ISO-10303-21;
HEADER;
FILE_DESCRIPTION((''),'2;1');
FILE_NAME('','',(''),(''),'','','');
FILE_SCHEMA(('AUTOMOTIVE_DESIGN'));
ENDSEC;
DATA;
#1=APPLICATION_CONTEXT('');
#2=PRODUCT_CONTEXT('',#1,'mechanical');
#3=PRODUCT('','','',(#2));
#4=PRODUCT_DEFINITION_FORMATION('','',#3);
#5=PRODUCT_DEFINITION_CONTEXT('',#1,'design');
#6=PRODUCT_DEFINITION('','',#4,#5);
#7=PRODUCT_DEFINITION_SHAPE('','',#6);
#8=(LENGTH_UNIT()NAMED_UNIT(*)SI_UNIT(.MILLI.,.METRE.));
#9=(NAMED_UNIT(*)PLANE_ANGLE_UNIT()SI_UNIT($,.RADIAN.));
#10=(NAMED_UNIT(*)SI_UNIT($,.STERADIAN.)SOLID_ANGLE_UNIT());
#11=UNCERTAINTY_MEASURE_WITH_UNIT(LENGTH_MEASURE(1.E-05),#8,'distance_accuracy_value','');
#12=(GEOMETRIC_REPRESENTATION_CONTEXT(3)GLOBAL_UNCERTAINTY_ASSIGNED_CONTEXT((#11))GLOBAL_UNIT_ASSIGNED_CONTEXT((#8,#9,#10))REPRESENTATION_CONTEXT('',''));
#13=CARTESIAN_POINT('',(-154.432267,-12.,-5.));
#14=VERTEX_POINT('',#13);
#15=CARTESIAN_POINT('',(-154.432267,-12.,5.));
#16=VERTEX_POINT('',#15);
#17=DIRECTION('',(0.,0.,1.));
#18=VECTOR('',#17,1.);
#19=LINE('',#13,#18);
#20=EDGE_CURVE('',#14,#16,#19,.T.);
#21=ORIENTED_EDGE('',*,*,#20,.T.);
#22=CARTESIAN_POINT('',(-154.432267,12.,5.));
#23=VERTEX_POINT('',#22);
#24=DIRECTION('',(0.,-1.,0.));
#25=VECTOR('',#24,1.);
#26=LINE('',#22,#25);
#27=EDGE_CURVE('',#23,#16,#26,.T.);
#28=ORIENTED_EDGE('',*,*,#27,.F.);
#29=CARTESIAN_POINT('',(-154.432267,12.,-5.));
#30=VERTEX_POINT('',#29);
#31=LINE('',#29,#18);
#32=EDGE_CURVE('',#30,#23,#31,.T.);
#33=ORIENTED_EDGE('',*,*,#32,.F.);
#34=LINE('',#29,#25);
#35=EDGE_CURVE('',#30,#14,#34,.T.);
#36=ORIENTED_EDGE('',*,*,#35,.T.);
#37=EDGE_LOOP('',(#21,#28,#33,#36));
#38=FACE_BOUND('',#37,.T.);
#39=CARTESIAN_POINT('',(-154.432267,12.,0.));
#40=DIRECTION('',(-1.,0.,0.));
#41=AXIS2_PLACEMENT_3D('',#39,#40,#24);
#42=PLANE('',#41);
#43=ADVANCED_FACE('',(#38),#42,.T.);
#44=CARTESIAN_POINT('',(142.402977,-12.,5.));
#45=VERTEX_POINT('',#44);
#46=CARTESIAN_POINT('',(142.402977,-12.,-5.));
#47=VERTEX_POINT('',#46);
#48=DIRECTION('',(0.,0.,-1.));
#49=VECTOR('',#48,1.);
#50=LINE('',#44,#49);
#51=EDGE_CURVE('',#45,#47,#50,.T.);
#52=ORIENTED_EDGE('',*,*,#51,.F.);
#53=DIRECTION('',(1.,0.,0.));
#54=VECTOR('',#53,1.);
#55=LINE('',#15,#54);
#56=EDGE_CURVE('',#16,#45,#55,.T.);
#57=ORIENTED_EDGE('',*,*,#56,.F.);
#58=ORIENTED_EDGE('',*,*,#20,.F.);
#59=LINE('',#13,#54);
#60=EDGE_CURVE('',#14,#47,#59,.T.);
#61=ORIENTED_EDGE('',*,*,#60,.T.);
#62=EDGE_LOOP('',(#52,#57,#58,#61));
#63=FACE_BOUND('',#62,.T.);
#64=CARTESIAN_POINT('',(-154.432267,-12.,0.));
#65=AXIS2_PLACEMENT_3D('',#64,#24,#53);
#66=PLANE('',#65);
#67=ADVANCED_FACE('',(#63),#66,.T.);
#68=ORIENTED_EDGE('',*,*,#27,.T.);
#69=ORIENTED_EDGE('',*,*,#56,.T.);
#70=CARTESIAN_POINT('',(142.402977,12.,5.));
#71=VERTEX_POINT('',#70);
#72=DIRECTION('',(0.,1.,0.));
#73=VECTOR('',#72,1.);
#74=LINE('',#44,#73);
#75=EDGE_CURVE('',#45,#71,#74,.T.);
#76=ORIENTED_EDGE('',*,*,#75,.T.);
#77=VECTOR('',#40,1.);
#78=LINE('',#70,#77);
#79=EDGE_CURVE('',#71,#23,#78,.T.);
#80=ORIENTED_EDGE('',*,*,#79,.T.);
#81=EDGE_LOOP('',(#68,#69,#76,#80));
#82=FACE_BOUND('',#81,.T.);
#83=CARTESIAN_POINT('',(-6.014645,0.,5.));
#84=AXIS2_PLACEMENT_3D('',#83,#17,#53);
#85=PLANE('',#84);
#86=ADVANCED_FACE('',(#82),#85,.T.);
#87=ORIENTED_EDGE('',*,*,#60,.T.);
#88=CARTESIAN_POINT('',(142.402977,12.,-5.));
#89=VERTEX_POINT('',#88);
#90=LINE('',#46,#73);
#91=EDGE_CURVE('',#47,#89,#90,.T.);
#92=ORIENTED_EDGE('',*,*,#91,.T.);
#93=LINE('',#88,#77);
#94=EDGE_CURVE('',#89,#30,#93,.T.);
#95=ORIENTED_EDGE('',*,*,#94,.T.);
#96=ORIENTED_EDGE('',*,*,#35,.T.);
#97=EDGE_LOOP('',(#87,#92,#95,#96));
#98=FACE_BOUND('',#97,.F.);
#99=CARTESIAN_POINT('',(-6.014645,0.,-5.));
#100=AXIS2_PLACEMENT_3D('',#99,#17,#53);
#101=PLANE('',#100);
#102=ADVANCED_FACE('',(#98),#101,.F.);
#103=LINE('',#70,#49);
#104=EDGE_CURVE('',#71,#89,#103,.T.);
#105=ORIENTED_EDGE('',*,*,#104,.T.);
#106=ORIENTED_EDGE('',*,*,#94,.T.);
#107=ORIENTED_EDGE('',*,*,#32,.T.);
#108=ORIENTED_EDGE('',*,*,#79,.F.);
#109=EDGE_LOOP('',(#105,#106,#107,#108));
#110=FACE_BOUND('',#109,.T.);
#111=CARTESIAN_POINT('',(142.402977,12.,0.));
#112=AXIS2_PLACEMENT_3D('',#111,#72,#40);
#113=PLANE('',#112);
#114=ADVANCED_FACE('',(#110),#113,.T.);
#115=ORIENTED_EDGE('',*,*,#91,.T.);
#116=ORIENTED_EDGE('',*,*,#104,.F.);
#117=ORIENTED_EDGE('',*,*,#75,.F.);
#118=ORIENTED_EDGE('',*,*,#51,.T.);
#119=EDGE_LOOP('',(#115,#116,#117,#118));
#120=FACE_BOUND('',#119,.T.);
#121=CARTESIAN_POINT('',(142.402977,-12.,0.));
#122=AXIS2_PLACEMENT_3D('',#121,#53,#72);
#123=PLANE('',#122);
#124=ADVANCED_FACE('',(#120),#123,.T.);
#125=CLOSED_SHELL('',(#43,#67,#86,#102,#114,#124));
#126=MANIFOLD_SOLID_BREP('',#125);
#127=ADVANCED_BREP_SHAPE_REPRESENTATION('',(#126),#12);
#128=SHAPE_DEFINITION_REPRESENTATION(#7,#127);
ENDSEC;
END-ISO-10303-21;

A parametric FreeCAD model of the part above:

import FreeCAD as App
import Part
import Sketcher
Q = App.Units.Quantity


def add_polygon(sketch, points):
    """Adds a closed chain of lines whose ends are joined by coincident constraints."""
    first, n = sketch.GeometryCount, len(points)
    for a, b in zip(points, points[1:] + points[:1]):
        sketch.addGeometry(Part.LineSegment(App.Vector(*a, 0), App.Vector(*b, 0)), False)
    for i in range(n):
        sketch.addConstraint(Sketcher.Constraint("Coincident", first + i, 2, first + (i + 1) % n, 1))

doc = App.newDocument("Part")
body = doc.addObject("PartDesign::Body", "Body")

sketch1 = body.newObject("Sketcher::SketchObject", "Sketch")
sketch1.AttachmentSupport = (doc.getObject("XY_Plane"), [""])
sketch1.MapMode = "FlatFace"
add_polygon(sketch1, [(142, 12), (-154, 12), (-154, -12), (142, -12)])
sketch1.addConstraint([
    Sketcher.Constraint("Horizontal", 0),
    Sketcher.Constraint("Vertical", 1),
    Sketcher.Constraint("Horizontal", 2),
    Sketcher.Constraint("Vertical", 3),
    Sketcher.Constraint("DistanceY", 1, 2, 1, 1, Q("24 mm")),
    Sketcher.Constraint("DistanceY", -1, 1, 0, 2, Q("12 mm")),
    Sketcher.Constraint("DistanceX", 0, 2, 0, 1, Q("296.835244 mm")),
    Sketcher.Constraint("DistanceX", 0, 2, -1, 1, Q("154.432267 mm")),
])
pad1 = body.newObject("PartDesign::Pad", "Pad")
pad1.Profile = sketch1
pad1.Type = "TwoLengths"
pad1.Length = 5
pad1.Length2 = 5

doc.recompute()
